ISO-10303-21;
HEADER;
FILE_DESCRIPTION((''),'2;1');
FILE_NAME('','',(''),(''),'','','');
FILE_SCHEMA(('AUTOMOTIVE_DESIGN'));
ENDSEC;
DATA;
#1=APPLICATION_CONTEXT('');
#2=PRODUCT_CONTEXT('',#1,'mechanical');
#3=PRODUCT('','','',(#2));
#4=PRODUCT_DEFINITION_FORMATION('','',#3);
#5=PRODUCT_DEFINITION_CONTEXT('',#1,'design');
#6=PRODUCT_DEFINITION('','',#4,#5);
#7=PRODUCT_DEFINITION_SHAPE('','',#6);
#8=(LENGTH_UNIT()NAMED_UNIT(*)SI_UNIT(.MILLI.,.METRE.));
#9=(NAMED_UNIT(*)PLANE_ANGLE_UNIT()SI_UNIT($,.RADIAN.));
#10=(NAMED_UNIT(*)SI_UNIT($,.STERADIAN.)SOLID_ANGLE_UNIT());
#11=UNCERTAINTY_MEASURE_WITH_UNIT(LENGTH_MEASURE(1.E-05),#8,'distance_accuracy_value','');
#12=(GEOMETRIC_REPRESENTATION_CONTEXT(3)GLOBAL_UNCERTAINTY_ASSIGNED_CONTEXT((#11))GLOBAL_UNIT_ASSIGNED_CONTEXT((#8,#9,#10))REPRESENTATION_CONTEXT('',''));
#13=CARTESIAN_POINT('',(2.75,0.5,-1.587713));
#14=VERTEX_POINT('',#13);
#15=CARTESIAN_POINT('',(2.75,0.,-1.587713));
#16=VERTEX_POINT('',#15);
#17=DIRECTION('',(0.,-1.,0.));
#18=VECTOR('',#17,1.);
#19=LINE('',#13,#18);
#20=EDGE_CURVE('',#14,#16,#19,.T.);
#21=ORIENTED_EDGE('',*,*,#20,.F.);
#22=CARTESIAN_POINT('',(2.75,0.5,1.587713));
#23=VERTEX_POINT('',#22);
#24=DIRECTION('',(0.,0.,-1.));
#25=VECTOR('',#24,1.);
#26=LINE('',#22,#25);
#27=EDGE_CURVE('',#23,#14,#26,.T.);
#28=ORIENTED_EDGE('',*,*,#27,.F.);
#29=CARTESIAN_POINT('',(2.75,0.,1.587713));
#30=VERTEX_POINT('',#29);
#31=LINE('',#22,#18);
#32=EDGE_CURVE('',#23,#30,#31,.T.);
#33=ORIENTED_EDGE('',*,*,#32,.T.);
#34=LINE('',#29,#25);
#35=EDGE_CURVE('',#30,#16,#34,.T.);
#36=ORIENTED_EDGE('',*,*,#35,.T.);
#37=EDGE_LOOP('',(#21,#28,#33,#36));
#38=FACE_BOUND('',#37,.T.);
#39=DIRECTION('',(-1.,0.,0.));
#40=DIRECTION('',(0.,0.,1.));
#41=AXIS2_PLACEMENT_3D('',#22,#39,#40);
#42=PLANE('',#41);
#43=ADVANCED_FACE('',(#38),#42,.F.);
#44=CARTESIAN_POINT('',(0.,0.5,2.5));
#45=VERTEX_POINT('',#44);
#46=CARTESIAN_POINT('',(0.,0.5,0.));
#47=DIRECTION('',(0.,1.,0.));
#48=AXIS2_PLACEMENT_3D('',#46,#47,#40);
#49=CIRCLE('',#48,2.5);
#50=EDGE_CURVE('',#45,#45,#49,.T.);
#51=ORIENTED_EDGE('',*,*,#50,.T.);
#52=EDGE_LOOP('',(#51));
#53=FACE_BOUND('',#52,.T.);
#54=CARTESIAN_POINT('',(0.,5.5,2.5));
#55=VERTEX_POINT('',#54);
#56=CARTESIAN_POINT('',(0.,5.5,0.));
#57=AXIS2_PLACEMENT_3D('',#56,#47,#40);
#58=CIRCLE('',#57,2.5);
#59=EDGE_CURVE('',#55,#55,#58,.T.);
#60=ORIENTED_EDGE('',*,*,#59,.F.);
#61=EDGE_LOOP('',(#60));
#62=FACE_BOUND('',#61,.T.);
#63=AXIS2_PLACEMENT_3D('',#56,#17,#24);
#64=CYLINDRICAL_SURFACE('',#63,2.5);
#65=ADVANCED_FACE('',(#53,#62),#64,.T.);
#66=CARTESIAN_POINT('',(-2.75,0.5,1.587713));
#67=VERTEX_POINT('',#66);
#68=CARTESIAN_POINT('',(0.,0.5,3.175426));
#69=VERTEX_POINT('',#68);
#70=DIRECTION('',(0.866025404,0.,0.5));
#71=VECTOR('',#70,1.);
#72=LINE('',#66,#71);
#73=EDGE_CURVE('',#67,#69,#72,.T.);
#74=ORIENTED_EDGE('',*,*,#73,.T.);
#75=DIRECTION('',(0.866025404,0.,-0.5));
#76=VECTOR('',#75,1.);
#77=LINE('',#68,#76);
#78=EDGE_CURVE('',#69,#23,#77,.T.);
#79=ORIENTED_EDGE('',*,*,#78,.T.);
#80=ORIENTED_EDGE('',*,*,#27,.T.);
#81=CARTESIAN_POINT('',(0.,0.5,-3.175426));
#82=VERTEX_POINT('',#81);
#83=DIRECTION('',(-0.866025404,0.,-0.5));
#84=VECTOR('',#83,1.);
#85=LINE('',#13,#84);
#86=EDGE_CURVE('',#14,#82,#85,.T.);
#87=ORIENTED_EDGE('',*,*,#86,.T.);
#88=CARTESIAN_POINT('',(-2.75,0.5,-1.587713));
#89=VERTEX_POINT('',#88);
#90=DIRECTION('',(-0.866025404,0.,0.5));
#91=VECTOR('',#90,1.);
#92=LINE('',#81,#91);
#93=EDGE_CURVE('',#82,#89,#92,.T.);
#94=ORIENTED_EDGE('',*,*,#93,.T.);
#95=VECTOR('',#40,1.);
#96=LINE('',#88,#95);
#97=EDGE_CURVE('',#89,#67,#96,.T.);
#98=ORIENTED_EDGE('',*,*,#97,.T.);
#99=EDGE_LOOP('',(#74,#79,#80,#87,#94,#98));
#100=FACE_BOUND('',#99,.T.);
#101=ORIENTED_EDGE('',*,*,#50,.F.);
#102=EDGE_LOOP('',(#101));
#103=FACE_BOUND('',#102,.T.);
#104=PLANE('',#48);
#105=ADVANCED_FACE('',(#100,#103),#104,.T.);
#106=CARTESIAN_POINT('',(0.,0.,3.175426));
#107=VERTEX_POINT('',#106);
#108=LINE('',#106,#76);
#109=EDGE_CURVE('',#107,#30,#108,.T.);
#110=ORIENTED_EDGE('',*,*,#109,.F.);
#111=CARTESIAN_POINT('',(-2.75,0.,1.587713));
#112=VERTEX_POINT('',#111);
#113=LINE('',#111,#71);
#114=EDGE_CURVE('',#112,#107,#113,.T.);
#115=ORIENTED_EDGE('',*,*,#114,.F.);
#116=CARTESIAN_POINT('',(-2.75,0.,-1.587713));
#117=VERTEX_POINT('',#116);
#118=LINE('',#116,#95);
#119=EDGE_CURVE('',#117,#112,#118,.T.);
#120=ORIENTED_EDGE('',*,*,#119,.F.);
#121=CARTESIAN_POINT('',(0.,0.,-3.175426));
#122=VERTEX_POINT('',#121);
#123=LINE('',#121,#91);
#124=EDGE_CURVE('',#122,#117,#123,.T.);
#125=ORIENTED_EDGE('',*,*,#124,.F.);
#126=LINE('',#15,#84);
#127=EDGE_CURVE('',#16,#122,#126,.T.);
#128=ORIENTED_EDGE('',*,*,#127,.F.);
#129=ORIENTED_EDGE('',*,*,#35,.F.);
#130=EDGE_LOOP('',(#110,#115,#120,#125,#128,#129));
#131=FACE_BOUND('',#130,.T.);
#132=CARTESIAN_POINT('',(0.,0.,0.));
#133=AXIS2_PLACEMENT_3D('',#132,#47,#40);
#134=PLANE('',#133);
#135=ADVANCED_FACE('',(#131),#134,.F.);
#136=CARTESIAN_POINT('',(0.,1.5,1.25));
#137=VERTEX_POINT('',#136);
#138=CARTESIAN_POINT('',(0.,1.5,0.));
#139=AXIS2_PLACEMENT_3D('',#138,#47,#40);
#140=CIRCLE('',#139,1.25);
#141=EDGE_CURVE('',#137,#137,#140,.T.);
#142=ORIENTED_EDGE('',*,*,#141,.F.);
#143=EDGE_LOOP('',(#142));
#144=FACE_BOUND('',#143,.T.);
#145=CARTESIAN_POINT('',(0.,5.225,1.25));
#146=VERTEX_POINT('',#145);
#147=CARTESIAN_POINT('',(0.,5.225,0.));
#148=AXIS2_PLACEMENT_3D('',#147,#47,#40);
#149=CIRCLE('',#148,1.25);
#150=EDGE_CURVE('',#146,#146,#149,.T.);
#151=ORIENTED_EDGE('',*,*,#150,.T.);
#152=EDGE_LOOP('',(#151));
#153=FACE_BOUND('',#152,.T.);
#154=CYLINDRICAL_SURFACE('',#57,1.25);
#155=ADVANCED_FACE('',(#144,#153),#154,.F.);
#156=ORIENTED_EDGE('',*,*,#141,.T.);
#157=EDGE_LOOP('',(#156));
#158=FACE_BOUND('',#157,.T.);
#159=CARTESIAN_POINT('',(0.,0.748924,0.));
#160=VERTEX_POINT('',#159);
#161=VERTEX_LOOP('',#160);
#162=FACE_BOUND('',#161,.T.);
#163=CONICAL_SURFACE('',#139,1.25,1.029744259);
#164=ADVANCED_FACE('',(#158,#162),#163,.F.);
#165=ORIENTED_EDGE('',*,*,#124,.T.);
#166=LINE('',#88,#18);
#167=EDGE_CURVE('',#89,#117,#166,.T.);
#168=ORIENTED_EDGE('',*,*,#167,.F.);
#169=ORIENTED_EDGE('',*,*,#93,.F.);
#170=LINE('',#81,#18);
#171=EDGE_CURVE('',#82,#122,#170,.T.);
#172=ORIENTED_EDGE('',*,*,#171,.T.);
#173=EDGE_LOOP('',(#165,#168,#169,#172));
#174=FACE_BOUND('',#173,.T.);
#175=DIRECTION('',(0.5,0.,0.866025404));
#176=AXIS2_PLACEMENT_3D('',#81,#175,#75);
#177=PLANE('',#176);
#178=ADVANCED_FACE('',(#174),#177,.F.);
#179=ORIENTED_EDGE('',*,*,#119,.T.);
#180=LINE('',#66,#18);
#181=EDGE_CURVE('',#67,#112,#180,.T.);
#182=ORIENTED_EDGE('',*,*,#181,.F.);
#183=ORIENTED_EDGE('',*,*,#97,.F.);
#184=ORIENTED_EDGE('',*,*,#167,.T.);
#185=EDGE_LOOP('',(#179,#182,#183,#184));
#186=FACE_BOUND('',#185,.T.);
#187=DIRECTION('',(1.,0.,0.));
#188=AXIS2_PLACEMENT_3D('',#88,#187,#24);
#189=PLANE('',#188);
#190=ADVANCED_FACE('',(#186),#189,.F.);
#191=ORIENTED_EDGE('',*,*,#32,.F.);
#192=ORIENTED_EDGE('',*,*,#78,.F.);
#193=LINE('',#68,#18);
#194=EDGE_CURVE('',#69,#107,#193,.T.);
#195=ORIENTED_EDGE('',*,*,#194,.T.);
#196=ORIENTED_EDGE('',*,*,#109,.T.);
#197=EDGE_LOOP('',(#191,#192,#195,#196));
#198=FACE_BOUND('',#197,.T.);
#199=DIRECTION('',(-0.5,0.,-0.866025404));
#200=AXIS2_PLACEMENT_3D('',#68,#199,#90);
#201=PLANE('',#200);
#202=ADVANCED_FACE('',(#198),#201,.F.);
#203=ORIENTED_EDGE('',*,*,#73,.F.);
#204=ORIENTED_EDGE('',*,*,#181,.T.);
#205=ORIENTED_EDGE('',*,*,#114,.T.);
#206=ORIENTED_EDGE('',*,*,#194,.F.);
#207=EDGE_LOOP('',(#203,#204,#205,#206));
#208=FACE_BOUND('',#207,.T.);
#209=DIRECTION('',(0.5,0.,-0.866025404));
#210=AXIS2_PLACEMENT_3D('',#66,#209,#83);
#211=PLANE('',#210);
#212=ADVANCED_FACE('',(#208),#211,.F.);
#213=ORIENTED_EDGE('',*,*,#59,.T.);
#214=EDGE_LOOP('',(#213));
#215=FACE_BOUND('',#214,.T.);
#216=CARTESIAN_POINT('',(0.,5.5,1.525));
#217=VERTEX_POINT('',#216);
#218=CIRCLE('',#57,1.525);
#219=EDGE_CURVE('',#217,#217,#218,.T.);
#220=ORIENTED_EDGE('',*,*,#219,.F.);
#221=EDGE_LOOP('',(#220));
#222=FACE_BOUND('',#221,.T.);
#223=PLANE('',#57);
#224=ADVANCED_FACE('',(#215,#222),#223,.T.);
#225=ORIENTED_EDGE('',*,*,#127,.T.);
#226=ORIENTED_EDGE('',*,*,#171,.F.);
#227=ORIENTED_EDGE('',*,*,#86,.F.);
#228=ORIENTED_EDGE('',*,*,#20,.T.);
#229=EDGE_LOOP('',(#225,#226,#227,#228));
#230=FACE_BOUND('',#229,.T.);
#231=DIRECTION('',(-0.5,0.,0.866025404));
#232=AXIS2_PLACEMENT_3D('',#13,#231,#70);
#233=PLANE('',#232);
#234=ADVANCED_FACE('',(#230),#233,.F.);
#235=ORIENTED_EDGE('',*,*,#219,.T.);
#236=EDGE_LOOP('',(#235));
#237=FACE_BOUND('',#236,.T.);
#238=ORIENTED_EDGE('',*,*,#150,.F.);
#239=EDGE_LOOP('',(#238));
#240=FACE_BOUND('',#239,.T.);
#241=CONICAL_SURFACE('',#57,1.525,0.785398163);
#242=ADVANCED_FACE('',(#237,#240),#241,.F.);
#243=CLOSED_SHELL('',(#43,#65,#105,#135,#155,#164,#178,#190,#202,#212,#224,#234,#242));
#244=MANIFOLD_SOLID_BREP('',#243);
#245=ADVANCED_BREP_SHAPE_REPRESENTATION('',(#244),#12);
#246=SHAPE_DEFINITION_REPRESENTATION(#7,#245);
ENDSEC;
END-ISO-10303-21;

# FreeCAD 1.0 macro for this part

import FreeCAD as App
import Part
import Sketcher
Q = App.Units.Quantity


def add_polygon(sketch, points):
    """Adds a closed chain of lines whose ends are joined by coincident constraints."""
    first, n = sketch.GeometryCount, len(points)
    for a, b in zip(points, points[1:] + points[:1]):
        sketch.addGeometry(Part.LineSegment(App.Vector(*a, 0), App.Vector(*b, 0)), False)
    for i in range(n):
        sketch.addConstraint(Sketcher.Constraint("Coincident", first + i, 2, first + (i + 1) % n, 1))

doc = App.newDocument("Part")
body = doc.addObject("PartDesign::Body", "Body")

# Sketch on XZ plane
sketch1 = body.newObject("Sketcher::SketchObject", "Sketch")
sketch1.AttachmentSupport = (doc.getObject("XZ_Plane"), [""])
sketch1.MapMode = "FlatFace"
add_polygon(sketch1, [(0, 3.175426), (2.75, 1.587713), (2.75, -1.587713), (0, -3.175426), (-2.75, -1.587713), (-2.75, 1.587713)])  # lines 0-5
sketch1.addConstraint([
    Sketcher.Constraint("Vertical", 1),
    Sketcher.Constraint("Vertical", 4),
    Sketcher.Constraint("Symmetric", 0, 2, 3, 2, -1, 1),
    Sketcher.Constraint("Symmetric", 2, 2, 5, 2, -1, 1),
    Sketcher.Constraint("PointOnObject", 2, 2, -2),
    Sketcher.Constraint("Parallel", 2, 5),
    Sketcher.Constraint("Horizontal", 1, 2, 3, 2),
    Sketcher.Constraint("Angle", 0, Q("-30 deg")),
    Sketcher.Constraint("DistanceX", 3, 2, 1, 2, 5.5),
    Sketcher.Constraint("DistanceY", 1, 2, 1, 1, 3.175426),
])
pad1 = body.newObject("PartDesign::Pad", "Pad")
pad1.Profile = sketch1
pad1.Length = 0.5
pad1.Reversed = True

# Sketch on XZ plane
sketch2 = body.newObject("Sketcher::SketchObject", "Sketch001")
sketch2.AttachmentSupport = (doc.getObject("XZ_Plane"), [""])
sketch2.MapMode = "FlatFace"
sketch2.AttachmentOffset = App.Placement(App.Vector(0, 0, -0.5), App.Rotation())
sketch2.addGeometry(Part.Circle(App.Vector(0, 0, 0), App.Vector(0, 0, 1), 2.5), False)
sketch2.addConstraint([
    Sketcher.Constraint("Coincident", 0, 3, -1, 1),
    Sketcher.Constraint("Diameter", 0, 5.0),
])
pad2 = body.newObject("PartDesign::Pad", "Pad001")
pad2.Profile = sketch2
pad2.Length = 5
pad2.Reversed = True

# Sketch on XZ plane
sketch3 = body.newObject("Sketcher::SketchObject", "Sketch002")
sketch3.AttachmentSupport = (doc.getObject("XZ_Plane"), [""])
sketch3.MapMode = "FlatFace"
sketch3.AttachmentOffset = App.Placement(App.Vector(0, 0, -5.5), App.Rotation())
sketch3.addGeometry(Part.Circle(App.Vector(0, 0, 0), App.Vector(0, 0, 1), 1.25), False)
sketch3.addConstraint([
    Sketcher.Constraint("Coincident", 0, 3, -1, 1),
    Sketcher.Constraint("Diameter", 0, 2.5),
])
doc.recompute()
hole = body.newObject("PartDesign::Hole", "Hole")
hole.Profile = sketch3
hole.ThreadType = "None"
hole.Diameter = 2.5
hole.DepthType = "Dimension"
hole.Depth = 4
hole.DrillPoint = "Angled"
hole.DrillPointAngle = 118
hole.HoleCutType = "Countersink"
hole.HoleCutDiameter = 3.05
hole.HoleCutCountersinkAngle = 90
hole.Reversed = True

doc.recompute()
